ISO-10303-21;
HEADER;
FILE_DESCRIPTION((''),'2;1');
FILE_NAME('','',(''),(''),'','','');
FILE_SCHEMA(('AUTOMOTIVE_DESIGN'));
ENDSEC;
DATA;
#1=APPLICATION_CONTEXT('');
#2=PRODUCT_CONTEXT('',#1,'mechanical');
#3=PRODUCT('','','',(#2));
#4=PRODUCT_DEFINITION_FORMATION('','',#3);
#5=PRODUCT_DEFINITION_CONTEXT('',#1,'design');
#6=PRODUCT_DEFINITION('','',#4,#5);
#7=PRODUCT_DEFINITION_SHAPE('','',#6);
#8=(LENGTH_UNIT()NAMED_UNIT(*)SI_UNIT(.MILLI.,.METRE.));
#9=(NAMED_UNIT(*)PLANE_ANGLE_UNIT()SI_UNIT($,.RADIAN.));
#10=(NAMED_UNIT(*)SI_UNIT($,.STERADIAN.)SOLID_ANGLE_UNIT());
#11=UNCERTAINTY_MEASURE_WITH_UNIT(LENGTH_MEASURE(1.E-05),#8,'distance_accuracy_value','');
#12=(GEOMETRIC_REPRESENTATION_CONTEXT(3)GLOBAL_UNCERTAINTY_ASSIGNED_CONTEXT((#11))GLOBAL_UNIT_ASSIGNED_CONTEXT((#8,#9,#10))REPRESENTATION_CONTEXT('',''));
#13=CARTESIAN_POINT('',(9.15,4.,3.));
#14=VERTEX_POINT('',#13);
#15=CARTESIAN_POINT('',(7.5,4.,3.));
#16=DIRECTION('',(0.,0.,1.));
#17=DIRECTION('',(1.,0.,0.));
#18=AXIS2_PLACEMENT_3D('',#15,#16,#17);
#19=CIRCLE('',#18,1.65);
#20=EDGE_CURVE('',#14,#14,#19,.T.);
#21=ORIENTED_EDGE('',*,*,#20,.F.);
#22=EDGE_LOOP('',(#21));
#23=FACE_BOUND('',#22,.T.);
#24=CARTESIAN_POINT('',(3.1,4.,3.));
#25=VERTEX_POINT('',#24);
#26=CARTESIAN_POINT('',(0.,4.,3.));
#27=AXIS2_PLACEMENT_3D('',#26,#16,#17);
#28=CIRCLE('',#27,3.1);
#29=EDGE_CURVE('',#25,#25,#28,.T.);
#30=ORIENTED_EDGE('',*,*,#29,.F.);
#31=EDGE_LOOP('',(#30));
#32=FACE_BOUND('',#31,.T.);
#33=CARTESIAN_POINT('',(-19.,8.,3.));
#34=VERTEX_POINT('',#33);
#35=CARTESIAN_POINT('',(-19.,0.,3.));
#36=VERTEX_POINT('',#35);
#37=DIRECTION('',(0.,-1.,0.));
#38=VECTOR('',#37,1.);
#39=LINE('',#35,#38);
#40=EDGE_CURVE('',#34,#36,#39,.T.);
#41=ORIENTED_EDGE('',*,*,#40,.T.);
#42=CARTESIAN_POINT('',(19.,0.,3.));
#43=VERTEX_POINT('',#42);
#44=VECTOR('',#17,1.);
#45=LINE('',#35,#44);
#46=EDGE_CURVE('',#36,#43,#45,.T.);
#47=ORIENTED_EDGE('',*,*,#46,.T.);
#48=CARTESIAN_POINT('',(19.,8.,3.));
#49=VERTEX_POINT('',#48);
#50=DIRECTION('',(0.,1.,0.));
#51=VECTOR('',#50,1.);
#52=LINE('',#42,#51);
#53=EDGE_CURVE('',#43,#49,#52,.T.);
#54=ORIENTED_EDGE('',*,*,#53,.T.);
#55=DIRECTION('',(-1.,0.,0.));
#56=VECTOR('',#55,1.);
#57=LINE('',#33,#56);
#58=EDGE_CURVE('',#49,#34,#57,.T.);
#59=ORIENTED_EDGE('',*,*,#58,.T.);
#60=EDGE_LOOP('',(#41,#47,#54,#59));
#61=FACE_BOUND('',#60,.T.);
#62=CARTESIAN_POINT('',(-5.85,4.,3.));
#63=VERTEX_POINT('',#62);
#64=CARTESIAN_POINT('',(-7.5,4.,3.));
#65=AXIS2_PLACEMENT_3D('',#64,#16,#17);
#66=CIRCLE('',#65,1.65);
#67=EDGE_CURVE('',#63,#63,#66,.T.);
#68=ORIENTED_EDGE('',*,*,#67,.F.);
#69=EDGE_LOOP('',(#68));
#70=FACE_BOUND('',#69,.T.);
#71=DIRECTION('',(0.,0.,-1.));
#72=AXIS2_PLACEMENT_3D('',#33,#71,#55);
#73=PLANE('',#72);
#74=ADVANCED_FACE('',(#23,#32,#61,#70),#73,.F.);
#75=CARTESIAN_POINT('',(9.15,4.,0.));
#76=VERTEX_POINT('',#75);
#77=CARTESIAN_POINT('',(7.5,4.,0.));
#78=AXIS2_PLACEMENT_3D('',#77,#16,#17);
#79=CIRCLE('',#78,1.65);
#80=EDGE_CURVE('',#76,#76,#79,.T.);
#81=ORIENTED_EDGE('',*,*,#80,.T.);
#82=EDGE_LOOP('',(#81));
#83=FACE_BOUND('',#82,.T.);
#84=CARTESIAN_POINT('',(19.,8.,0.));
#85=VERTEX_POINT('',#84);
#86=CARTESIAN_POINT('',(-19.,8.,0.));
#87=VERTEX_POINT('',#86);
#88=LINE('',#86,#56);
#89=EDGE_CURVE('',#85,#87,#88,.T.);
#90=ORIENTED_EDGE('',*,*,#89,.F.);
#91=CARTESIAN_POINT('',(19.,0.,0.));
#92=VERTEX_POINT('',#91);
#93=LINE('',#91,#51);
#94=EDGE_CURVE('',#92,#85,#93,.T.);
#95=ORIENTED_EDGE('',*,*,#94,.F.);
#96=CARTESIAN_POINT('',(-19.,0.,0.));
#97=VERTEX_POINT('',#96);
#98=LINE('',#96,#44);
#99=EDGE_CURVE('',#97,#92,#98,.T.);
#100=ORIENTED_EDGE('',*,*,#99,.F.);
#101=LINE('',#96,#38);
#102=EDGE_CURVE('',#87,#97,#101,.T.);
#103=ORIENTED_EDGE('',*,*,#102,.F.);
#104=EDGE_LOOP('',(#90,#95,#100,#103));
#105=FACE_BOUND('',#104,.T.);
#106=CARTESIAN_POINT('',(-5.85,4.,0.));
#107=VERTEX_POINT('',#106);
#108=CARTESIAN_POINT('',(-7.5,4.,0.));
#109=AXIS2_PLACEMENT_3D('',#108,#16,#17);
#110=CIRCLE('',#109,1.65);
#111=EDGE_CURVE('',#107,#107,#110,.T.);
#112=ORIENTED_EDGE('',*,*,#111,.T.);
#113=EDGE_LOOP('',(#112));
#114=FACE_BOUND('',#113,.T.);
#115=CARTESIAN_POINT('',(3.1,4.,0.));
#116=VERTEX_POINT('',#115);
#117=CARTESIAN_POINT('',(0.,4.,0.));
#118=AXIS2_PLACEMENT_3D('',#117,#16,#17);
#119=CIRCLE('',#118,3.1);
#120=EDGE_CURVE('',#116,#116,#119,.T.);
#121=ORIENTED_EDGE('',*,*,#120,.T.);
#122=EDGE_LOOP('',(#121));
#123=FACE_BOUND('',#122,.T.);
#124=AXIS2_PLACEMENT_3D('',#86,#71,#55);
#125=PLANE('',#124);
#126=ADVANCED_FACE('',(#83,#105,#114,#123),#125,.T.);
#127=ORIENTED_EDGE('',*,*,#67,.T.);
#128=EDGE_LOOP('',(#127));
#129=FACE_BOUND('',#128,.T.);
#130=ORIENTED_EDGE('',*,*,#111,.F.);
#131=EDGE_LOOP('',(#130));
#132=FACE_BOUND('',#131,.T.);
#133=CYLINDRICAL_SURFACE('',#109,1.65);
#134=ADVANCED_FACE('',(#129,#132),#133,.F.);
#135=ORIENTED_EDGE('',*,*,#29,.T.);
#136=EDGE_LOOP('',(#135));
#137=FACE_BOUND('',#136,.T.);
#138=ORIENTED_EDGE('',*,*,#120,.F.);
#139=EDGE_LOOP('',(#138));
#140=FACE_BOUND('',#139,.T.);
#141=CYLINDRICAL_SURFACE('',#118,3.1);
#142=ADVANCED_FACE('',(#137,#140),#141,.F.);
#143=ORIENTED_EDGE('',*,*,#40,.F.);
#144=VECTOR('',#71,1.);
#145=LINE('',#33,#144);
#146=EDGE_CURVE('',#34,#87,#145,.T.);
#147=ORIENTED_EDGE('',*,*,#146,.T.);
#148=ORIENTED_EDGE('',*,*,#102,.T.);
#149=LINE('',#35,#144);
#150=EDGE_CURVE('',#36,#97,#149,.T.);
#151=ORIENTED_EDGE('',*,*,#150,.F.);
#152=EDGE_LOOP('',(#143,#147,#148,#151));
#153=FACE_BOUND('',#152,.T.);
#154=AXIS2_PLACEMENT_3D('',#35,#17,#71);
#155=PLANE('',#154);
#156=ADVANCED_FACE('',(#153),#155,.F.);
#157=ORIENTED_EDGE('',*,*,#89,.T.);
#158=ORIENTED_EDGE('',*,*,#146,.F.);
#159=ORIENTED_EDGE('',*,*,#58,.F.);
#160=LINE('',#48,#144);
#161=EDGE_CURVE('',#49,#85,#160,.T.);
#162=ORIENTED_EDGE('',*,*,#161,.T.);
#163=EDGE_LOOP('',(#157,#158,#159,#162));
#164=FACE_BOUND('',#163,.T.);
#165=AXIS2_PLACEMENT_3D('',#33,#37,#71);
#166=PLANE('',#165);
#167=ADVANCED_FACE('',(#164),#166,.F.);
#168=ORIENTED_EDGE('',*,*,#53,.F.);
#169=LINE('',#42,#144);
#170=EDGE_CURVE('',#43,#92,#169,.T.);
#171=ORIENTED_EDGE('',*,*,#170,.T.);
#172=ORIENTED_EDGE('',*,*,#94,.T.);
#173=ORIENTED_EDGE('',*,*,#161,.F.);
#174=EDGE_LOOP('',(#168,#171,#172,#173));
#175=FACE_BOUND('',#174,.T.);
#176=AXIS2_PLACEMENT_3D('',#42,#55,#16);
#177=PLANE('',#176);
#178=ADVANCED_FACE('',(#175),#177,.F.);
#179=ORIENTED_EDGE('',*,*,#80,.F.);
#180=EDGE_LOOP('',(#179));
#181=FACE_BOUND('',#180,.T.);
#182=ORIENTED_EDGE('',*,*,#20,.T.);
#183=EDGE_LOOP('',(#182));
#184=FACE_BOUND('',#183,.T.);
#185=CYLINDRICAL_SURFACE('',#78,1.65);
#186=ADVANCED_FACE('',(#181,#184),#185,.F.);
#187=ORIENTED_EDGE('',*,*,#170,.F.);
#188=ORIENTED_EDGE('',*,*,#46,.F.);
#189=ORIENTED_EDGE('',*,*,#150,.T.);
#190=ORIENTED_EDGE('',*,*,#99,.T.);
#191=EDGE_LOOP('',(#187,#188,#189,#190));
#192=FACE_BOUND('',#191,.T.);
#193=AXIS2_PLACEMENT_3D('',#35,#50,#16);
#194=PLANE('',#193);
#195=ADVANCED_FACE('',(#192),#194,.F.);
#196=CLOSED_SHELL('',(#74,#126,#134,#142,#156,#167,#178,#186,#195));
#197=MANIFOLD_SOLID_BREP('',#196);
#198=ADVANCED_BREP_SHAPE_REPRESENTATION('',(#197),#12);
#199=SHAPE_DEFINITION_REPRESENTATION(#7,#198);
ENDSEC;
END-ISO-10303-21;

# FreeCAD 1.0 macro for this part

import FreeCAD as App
import Part
import Sketcher
from FreeCAD import Vector
Q = App.Units.Quantity

doc = App.newDocument("Part")
body = doc.addObject("PartDesign::Body", "Body")

# Sketch on XY plane
sketch1 = body.newObject("Sketcher::SketchObject", "Sketch")
sketch1.AttachmentSupport = (doc.getObject("XY_Plane"), [""])
sketch1.MapMode = "FlatFace"
sketch1.addGeometry(Part.LineSegment(Vector(-19, 8, 0), Vector(-19, 0, 0)), False)
sketch1.addGeometry(Part.LineSegment(Vector(-19, 0, 0), Vector(19, 0, 0)), False)
sketch1.addGeometry(Part.LineSegment(Vector(19, 0, 0), Vector(19, 8, 0)), False)
sketch1.addGeometry(Part.LineSegment(Vector(19, 8, 0), Vector(-19, 8, 0)), False)
sketch1.addConstraint(Sketcher.Constraint("Coincident", 0, 2, 1, 1))
sketch1.addConstraint(Sketcher.Constraint("Coincident", 1, 2, 2, 1))
sketch1.addConstraint(Sketcher.Constraint("Coincident", 2, 2, 3, 1))
sketch1.addConstraint(Sketcher.Constraint("Coincident", 3, 2, 0, 1))
sketch1.addConstraint(Sketcher.Constraint("Vertical", 0))
sketch1.addConstraint(Sketcher.Constraint("Horizontal", 1))
sketch1.addConstraint(Sketcher.Constraint("Vertical", 2))
sketch1.addConstraint(Sketcher.Constraint("Horizontal", 3))
sketch1.addConstraint(Sketcher.Constraint("Symmetric", 0, 2, 1, 2, -1, 1))
sketch1.addConstraint(Sketcher.Constraint("DistanceX", 1, 1, 1, 2, Q("38 mm")))
sketch1.addConstraint(Sketcher.Constraint("DistanceY", 0, 2, 0, 1, Q("8 mm")))
pad1 = body.newObject("PartDesign::Pad", "Pad")
pad1.Profile = sketch1
pad1.Length = 3

# Sketch on XY plane
sketch2 = body.newObject("Sketcher::SketchObject", "Sketch001")
sketch2.AttachmentSupport = (doc.getObject("XY_Plane"), [""])
sketch2.MapMode = "FlatFace"
sketch2.AttachmentOffset = App.Placement(Vector(0, 0, 3), App.Rotation())
sketch2.addGeometry(Part.Circle(Vector(0, 4, 0), Vector(0, 0, 1), 3.1), False)
sketch2.addGeometry(Part.Circle(Vector(-7.5, 4, 0), Vector(0, 0, 1), 1.6), False)
sketch2.addGeometry(Part.Circle(Vector(7.5, 4, 0), Vector(0, 0, 1), 1.6), False)
sketch2.addConstraint(Sketcher.Constraint("Equal", 1, 2))
sketch2.addConstraint(Sketcher.Constraint("Symmetric", 1, 3, 2, 3, -2))
sketch2.addConstraint(Sketcher.Constraint("PointOnObject", 0, 3, -2))
sketch2.addConstraint(Sketcher.Constraint("Horizontal", 0, 3, 1, 3))
sketch2.addConstraint(Sketcher.Constraint("Diameter", 0, Q("6.2 mm")))
sketch2.addConstraint(Sketcher.Constraint("Diameter", 1, Q("3.3 mm")))
sketch2.addConstraint(Sketcher.Constraint("DistanceY", -1, 1, 0, 3, Q("4 mm")))
sketch2.addConstraint(Sketcher.Constraint("DistanceX", 1, 3, 2, 3, Q("15 mm")))
pocket1 = body.newObject("PartDesign::Pocket", "Pocket")
pocket1.Profile = sketch2
pocket1.Type = "ThroughAll"

doc.recompute()
